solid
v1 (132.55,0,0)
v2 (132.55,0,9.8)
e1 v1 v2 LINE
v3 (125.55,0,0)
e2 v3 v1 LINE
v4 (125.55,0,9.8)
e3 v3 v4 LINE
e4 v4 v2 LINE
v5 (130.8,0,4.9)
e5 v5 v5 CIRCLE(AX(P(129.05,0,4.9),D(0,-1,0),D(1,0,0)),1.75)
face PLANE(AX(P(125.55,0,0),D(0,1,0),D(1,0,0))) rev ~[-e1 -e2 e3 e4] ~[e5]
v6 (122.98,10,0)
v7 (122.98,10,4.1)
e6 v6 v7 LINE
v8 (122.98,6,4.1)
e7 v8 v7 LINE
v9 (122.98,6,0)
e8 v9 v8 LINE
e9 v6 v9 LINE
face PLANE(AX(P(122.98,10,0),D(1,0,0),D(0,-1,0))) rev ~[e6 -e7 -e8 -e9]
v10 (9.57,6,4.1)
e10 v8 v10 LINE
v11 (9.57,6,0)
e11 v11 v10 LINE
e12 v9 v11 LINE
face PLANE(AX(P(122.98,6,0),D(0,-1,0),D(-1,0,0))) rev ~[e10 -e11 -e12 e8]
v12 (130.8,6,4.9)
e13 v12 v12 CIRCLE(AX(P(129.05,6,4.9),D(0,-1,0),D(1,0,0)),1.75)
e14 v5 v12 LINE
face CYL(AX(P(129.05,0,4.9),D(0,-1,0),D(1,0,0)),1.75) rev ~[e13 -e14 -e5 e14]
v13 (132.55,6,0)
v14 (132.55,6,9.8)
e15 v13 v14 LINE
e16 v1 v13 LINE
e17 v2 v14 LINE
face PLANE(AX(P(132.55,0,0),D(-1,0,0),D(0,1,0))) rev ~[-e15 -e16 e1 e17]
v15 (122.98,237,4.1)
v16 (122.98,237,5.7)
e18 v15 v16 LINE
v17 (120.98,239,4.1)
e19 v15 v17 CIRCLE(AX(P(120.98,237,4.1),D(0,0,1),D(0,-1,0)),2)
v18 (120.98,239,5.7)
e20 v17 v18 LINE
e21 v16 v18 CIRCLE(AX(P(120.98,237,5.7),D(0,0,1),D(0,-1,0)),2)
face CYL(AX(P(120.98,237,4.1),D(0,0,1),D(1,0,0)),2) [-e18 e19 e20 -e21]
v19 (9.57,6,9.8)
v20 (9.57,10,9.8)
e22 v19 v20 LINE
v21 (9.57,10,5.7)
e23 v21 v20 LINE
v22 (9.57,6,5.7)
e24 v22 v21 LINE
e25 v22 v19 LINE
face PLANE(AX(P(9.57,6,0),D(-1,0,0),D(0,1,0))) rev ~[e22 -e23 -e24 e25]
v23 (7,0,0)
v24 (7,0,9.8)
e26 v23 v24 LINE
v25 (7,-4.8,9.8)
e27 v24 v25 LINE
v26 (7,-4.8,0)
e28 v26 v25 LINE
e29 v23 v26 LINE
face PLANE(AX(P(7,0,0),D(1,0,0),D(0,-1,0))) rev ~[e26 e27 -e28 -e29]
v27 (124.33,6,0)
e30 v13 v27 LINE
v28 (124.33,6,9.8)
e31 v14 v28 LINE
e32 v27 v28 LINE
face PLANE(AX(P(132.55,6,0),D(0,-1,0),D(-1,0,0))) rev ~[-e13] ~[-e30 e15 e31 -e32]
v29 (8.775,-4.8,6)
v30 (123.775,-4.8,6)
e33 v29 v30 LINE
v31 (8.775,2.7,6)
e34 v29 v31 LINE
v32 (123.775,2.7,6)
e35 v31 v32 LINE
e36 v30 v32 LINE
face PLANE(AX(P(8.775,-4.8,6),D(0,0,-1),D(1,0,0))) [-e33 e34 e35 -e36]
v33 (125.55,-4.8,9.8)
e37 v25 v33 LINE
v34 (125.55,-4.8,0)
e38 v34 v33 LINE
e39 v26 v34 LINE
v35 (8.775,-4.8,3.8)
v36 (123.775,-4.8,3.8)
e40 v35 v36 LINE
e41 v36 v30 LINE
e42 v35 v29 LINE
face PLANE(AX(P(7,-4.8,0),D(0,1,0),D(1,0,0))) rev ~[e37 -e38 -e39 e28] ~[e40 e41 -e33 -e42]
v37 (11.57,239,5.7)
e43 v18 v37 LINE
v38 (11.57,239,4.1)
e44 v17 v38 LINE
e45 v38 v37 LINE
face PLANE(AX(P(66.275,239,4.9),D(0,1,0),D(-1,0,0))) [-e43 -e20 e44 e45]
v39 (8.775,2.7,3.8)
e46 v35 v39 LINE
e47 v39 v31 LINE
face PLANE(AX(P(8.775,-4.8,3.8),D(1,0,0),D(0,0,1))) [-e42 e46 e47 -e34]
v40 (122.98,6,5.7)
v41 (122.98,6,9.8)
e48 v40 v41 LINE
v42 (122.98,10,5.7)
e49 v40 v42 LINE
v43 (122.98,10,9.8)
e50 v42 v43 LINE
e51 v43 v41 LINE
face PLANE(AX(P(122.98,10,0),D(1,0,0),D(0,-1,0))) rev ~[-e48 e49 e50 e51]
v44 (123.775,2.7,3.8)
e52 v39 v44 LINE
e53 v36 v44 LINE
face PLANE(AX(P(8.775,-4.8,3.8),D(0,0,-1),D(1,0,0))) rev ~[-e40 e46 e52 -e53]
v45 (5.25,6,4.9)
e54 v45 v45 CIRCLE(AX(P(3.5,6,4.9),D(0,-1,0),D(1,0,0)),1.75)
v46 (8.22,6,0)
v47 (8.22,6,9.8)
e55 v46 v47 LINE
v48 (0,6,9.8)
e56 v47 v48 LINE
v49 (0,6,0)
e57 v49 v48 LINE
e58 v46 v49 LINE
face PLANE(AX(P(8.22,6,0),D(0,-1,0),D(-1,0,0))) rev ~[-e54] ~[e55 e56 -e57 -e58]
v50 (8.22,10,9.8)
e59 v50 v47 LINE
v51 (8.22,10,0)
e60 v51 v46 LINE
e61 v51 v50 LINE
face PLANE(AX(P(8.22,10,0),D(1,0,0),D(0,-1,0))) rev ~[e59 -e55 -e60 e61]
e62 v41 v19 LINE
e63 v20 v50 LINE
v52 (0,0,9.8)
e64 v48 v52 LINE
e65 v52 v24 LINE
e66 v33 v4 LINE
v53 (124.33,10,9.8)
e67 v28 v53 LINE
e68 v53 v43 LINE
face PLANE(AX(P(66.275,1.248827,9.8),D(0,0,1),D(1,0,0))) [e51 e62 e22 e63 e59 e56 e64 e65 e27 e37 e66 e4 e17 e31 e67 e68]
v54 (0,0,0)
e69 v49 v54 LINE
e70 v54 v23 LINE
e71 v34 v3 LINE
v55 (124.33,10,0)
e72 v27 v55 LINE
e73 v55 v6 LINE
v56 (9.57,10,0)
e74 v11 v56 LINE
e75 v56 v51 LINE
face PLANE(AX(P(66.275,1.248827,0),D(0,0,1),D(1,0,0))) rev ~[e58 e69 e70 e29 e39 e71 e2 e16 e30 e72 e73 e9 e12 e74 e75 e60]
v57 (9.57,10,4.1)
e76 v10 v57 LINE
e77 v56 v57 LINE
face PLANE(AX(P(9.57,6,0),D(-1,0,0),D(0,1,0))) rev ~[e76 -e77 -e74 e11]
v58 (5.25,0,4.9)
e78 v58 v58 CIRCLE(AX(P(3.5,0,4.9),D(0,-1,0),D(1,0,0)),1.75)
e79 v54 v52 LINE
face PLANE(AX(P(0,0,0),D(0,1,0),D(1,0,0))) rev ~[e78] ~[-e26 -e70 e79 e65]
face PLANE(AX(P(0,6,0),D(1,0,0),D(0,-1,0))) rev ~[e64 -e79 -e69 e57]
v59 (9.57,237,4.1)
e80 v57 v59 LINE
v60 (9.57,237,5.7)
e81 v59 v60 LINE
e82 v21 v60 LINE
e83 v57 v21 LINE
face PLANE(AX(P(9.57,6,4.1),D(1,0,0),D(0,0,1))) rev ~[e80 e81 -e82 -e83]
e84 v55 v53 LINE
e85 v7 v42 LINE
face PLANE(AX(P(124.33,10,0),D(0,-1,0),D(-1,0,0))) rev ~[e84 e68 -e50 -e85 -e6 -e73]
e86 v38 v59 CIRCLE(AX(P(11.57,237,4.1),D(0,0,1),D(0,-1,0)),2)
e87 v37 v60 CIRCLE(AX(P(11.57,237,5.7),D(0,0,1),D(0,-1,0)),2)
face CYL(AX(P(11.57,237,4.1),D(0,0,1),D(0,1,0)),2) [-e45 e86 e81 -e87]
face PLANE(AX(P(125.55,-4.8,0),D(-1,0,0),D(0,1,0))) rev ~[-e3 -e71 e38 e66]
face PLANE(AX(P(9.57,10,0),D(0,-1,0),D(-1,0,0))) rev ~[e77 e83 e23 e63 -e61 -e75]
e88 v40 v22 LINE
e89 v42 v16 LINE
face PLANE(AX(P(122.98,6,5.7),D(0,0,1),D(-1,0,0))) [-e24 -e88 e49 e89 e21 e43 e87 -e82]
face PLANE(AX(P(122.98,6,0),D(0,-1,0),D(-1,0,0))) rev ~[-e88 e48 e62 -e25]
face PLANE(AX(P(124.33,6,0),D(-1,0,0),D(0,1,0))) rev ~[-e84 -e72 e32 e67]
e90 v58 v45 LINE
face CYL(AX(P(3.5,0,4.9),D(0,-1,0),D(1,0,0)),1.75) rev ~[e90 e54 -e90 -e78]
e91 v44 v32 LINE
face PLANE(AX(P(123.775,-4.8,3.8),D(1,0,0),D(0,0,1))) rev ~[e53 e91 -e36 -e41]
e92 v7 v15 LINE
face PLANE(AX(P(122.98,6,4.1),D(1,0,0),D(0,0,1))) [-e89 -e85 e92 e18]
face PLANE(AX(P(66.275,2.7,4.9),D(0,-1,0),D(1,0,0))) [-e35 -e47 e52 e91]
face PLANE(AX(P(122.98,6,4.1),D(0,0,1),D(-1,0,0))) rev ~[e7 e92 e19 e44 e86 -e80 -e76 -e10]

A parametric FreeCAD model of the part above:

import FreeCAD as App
import Part
import Sketcher
from FreeCAD import Vector
Q = App.Units.Quantity


def edges_at(feature, points):
    """Names of the edges that pass closest to the given points."""
    edges = feature.Shape.Edges
    near = lambda p: min(range(len(edges)), key=lambda i: edges[i].distToShape(Part.Vertex(*p))[0])
    return sorted({f"Edge{near(p) + 1}" for p in points})


def add_polygon(sketch, points):
    """Adds a closed chain of lines whose ends are joined by coincident constraints."""
    first, n = sketch.GeometryCount, len(points)
    for a, b in zip(points, points[1:] + points[:1]):
        sketch.addGeometry(Part.LineSegment(App.Vector(*a, 0), App.Vector(*b, 0)), False)
    for i in range(n):
        sketch.addConstraint(Sketcher.Constraint("Coincident", first + i, 2, first + (i + 1) % n, 1))

doc = App.newDocument("Part")
body = doc.addObject("PartDesign::Body", "Body")

# Sketch on XY plane
sketch1 = doc.addObject("Sketcher::SketchObject", "Sketch")
body.addObject(sketch1)
sketch1.AttachmentSupport = (doc.XY_Plane, [""])
sketch1.MapMode = "FlatFace"
add_polygon(sketch1, [(8.2, 6), (0, 6), (0, 0), (7, 0), (7, -4.8), (125.5, -4.8), (125.5, 0), (132.6, 0), (132.6, 6), (124.3, 6), (124.3, 10), (123, 10), (123, 6), (9.6, 6), (9.6, 10), (8.2, 10)])  # lines 0-15
sketch1.addConstraint([
    Sketcher.Constraint("Horizontal", 0),
    Sketcher.Constraint("Vertical", 1),
    Sketcher.Constraint("Horizontal", 2),
    Sketcher.Constraint("Vertical", 3),
    Sketcher.Constraint("Horizontal", 4),
    Sketcher.Constraint("Vertical", 5),
    Sketcher.Constraint("Horizontal", 6),
    Sketcher.Constraint("Vertical", 7),
    Sketcher.Constraint("Horizontal", 8),
    Sketcher.Constraint("Vertical", 9),
    Sketcher.Constraint("Horizontal", 10),
    Sketcher.Constraint("Vertical", 11),
    Sketcher.Constraint("Horizontal", 12),
    Sketcher.Constraint("Vertical", 13),
    Sketcher.Constraint("Horizontal", 14),
    Sketcher.Constraint("Vertical", 15),
    Sketcher.Constraint("Coincident", 1, 2, -1, 1),
    Sketcher.Constraint("PointOnObject", 5, 2, -1),
    Sketcher.Constraint("Horizontal", 0, 2, 7, 2),
    Sketcher.Constraint("Horizontal", 8, 2, 11, 2),
    Sketcher.Constraint("Horizontal", 10, 2, 13, 2),
    Sketcher.Constraint("Equal", 2, 6),
    Sketcher.Constraint("Equal", 0, 8),
    Sketcher.Constraint("Equal", 10, 14),
    Sketcher.Constraint("DistanceX", 2, 1, 2, 2, Q("7 mm")),
    Sketcher.Constraint("DistanceY", 1, 2, 1, 1, Q("6 mm")),
    Sketcher.Constraint("DistanceY", 9, 1, 9, 2, Q("4 mm")),
    Sketcher.Constraint("DistanceY", 3, 2, 3, 1, Q("4.8 mm")),
    Sketcher.Constraint("DistanceX", 0, 2, 0, 1, Q("8.22 mm")),
    Sketcher.Constraint("DistanceX", 4, 1, 4, 2, Q("118.55 mm")),
    Sketcher.Constraint("DistanceX", 10, 2, 10, 1, Q("1.35 mm")),
])
pad1 = doc.addObject("PartDesign::Pad", "Pad")
body.addObject(pad1)
pad1.Profile = sketch1
pad1.Length = 9.8

# Sketch on XZ plane
sketch2 = doc.addObject("Sketcher::SketchObject", "Sketch001")
body.addObject(sketch2)
sketch2.AttachmentSupport = (doc.XZ_Plane, [""])
sketch2.MapMode = "FlatFace"
sketch2.addGeometry(Part.Circle(Vector(3.5, 4.9, 0), Vector(0, 0, 1), 1.8), False)
sketch2.addConstraint([
    Sketcher.Constraint("Diameter", 0, Q("3.5 mm")),
    Sketcher.Constraint("DistanceX", -1, 1, 0, 3, Q("3.5 mm")),
    Sketcher.Constraint("DistanceY", -1, 1, 0, 3, Q("4.9 mm")),
])
pocket1 = doc.addObject("PartDesign::Pocket", "Pocket")
body.addObject(pocket1)
pocket1.Profile = sketch2
pocket1.Length = 7

# Sketch on XZ plane
sketch3 = doc.addObject("Sketcher::SketchObject", "Sketch002")
body.addObject(sketch3)
sketch3.AttachmentSupport = (doc.XZ_Plane, [""])
sketch3.MapMode = "FlatFace"
sketch3.addGeometry(Part.Circle(Vector(129.1, 4.9, 0), Vector(0, 0, 1), 1.8), False)
sketch3.addConstraint([
    Sketcher.Constraint("Diameter", 0, Q("3.5 mm")),
    Sketcher.Constraint("DistanceY", -1, 1, 0, 3, Q("4.9 mm")),
    Sketcher.Constraint("DistanceX", -1, 1, 0, 3, Q("129.05 mm")),
])
pocket2 = doc.addObject("PartDesign::Pocket", "Pocket001")
body.addObject(pocket2)
pocket2.Profile = sketch3
pocket2.Length = 7

# Sketch on XZ plane
sketch4 = doc.addObject("Sketcher::SketchObject", "Sketch003")
body.addObject(sketch4)
sketch4.AttachmentSupport = (doc.XZ_Plane, [""])
sketch4.MapMode = "FlatFace"
sketch4.AttachmentOffset = App.Placement(Vector(0, 0, 4.8), App.Rotation())
add_polygon(sketch4, [(8.8, 6), (8.8, 3.8), (123.8, 3.8), (123.8, 6)])  # lines 0-3
sketch4.addConstraint([
    Sketcher.Constraint("Vertical", 0),
    Sketcher.Constraint("Horizontal", 1),
    Sketcher.Constraint("Vertical", 2),
    Sketcher.Constraint("Horizontal", 3),
    Sketcher.Constraint("DistanceX", 1, 1, 1, 2, Q("115 mm")),
    Sketcher.Constraint("DistanceY", 0, 2, 0, 1, Q("2.2 mm")),
    Sketcher.Constraint("DistanceY", -1, 1, 2, 2, Q("6 mm")),
    Sketcher.Constraint("DistanceX", -1, 1, 0, 2, Q("8.775 mm")),
])
pocket3 = doc.addObject("PartDesign::Pocket", "Pocket002")
body.addObject(pocket3)
pocket3.Profile = sketch4
pocket3.Length = 7.5

# Sketch on XZ plane
sketch5 = doc.addObject("Sketcher::SketchObject", "Sketch004")
body.addObject(sketch5)
sketch5.AttachmentSupport = (doc.XZ_Plane, [""])
sketch5.MapMode = "FlatFace"
sketch5.AttachmentOffset = App.Placement(Vector(0, 0, -6), App.Rotation())
add_polygon(sketch5, [(123, 5.7), (123, 4.1), (9.6, 4.1), (9.6, 5.7)])  # lines 0-3
sketch5.addConstraint([
    Sketcher.Constraint("Vertical", 0),
    Sketcher.Constraint("Horizontal", 1),
    Sketcher.Constraint("Vertical", 2),
    Sketcher.Constraint("Horizontal", 3),
    Sketcher.Constraint("DistanceY", 0, 2, 0, 1, Q("1.6 mm")),
    Sketcher.Constraint("DistanceX", 1, 2, 1, 1, Q("113.41 mm")),
    Sketcher.Constraint("DistanceY", -1, 1, 0, 2, Q("4.1 mm")),
    Sketcher.Constraint("DistanceX", -1, 1, 0, 2, Q("122.98 mm")),
])
pad2 = doc.addObject("PartDesign::Pad", "Pad001")
body.addObject(pad2)
pad2.Profile = sketch5
pad2.Length = 233
pad2.Reversed = True
doc.recompute()

fillet = doc.addObject("PartDesign::Fillet", "Fillet")
body.addObject(fillet)
fillet.Base = (pad2, edges_at(pad2, [(122.98, 239, 4.9), (9.57, 239, 4.9)]))
fillet.Radius = 2

doc.recompute()
